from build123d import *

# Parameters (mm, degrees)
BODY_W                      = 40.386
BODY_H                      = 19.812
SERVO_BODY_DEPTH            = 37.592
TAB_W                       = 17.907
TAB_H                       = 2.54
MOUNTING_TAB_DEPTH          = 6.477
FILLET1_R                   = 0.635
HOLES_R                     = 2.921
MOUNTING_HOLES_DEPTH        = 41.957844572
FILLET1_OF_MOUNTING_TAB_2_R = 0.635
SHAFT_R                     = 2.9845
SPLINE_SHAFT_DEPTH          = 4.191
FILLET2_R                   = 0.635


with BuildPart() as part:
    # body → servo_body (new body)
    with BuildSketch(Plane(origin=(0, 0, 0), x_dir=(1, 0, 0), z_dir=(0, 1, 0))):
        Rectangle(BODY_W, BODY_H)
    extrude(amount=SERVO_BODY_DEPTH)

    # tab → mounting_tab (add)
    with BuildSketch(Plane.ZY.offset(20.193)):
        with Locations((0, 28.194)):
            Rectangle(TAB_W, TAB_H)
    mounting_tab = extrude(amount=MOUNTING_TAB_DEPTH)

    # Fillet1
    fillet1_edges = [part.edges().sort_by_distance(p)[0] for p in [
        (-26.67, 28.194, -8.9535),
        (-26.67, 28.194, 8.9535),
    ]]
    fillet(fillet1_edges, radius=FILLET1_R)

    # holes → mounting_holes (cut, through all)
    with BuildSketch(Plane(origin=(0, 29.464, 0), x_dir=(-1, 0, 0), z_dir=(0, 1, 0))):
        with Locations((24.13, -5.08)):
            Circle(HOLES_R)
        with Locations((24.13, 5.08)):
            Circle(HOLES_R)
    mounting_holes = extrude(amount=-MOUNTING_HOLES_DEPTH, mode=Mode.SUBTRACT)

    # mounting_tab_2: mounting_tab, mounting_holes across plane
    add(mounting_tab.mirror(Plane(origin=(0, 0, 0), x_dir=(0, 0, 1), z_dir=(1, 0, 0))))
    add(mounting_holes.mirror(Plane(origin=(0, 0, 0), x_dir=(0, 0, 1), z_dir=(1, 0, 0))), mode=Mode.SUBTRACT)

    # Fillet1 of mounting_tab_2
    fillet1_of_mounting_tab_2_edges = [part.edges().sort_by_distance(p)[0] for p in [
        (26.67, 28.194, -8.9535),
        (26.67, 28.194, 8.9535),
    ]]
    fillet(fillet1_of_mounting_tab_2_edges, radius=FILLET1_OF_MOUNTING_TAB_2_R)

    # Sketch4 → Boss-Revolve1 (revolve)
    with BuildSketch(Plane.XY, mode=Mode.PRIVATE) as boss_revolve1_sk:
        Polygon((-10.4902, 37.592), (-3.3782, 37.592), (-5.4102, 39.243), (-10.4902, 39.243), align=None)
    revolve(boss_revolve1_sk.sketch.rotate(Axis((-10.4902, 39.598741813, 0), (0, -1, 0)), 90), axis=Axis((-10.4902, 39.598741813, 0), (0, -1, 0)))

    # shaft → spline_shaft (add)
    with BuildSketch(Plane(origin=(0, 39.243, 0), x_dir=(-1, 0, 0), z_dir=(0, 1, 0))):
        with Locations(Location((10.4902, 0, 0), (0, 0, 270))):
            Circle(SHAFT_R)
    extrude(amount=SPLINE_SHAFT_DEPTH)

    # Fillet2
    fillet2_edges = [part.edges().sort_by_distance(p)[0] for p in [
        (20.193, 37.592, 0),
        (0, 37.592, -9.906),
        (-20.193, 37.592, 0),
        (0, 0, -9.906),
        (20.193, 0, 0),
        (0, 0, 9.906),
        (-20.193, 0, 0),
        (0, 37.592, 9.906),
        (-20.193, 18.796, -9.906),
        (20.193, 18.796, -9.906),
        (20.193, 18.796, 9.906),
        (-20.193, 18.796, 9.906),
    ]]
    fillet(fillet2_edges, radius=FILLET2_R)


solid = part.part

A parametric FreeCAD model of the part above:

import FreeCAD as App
import Part
import Sketcher

V = App.Vector
Q = App.Units.Quantity


def edges_at(feature, points):
    """Names of the edges that pass closest to the given points."""
    edges = feature.Shape.Edges
    near = lambda p: min(range(len(edges)), key=lambda i: edges[i].distToShape(Part.Vertex(*p))[0])
    return sorted({f"Edge{near(p) + 1}" for p in points})

doc = App.newDocument("Part")
body = doc.addObject("PartDesign::Body", "Body")

# Sketch on XZ plane
sketch1 = doc.addObject("Sketcher::SketchObject", "Sketch")
body.addObject(sketch1)
sketch1.AttachmentSupport = (doc.XZ_Plane, [""])
sketch1.MapMode = "FlatFace"
sketch1.addGeometry(Part.LineSegment(V(-20, -10, 0), V(-20, 10, 0)), False)
sketch1.addGeometry(Part.LineSegment(V(-20, 10, 0), V(20, 10, 0)), False)
sketch1.addGeometry(Part.LineSegment(V(20, 10, 0), V(20, -10, 0)), False)
sketch1.addGeometry(Part.LineSegment(V(20, -10, 0), V(-20, -10, 0)), False)
sketch1.addConstraint(Sketcher.Constraint("Coincident", 0, 2, 1, 1))
sketch1.addConstraint(Sketcher.Constraint("Coincident", 1, 2, 2, 1))
sketch1.addConstraint(Sketcher.Constraint("Coincident", 2, 2, 3, 1))
sketch1.addConstraint(Sketcher.Constraint("Coincident", 3, 2, 0, 1))
sketch1.addConstraint(Sketcher.Constraint("Vertical", 0))
sketch1.addConstraint(Sketcher.Constraint("Horizontal", 1))
sketch1.addConstraint(Sketcher.Constraint("Vertical", 2))
sketch1.addConstraint(Sketcher.Constraint("Horizontal", 3))
sketch1.addConstraint(Sketcher.Constraint("Symmetric", 0, 2, 2, 2, -1, 1))
sketch1.addConstraint(Sketcher.Constraint("DistanceX", 1, 1, 1, 2, Q("1.59 in")))
sketch1.addConstraint(Sketcher.Constraint("DistanceY", 0, 1, 0, 2, Q("0.78 in")))
pad1 = doc.addObject("PartDesign::Pad", "Pad")
body.addObject(pad1)
pad1.Profile = sketch1
pad1.Length = Q("1.48 in")
pad1.Reversed = True

# Sketch on YZ plane
sketch2 = doc.addObject("Sketcher::SketchObject", "Sketch001")
body.addObject(sketch2)
sketch2.AttachmentSupport = (doc.YZ_Plane, [""])
sketch2.MapMode = "FlatFace"
sketch2.AttachmentOffset = App.Placement(V(0, 0, -0.795 * 25.4), App.Rotation())
sketch2.addGeometry(Part.LineSegment(V(29.5, -9, 0), V(26.9, -9, 0)), False)
sketch2.addGeometry(Part.LineSegment(V(26.9, -9, 0), V(26.9, 9, 0)), False)
sketch2.addGeometry(Part.LineSegment(V(26.9, 9, 0), V(29.5, 9, 0)), False)
sketch2.addGeometry(Part.LineSegment(V(29.5, 9, 0), V(29.5, -9, 0)), False)
sketch2.addConstraint(Sketcher.Constraint("Coincident", 0, 2, 1, 1))
sketch2.addConstraint(Sketcher.Constraint("Coincident", 1, 2, 2, 1))
sketch2.addConstraint(Sketcher.Constraint("Coincident", 2, 2, 3, 1))
sketch2.addConstraint(Sketcher.Constraint("Coincident", 3, 2, 0, 1))
sketch2.addConstraint(Sketcher.Constraint("Horizontal", 0))
sketch2.addConstraint(Sketcher.Constraint("Vertical", 1))
sketch2.addConstraint(Sketcher.Constraint("Horizontal", 2))
sketch2.addConstraint(Sketcher.Constraint("Vertical", 3))
sketch2.addConstraint(Sketcher.Constraint("DistanceX", 0, 2, 0, 1, Q("0.1 in")))
sketch2.addConstraint(Sketcher.Constraint("DistanceY", 1, 1, 1, 2, Q("0.705 in")))
sketch2.addConstraint(Sketcher.Constraint("DistanceX", -1, 1, 0, 2, Q("1.06 in")))
sketch2.addConstraint(Sketcher.Constraint("DistanceY", 0, 2, -1, 1, Q("0.3525 in")))
pad2 = doc.addObject("PartDesign::Pad", "Pad001")
body.addObject(pad2)
pad2.Profile = sketch2
pad2.Length = Q("0.255 in")
pad2.Reversed = True
doc.recompute()

fillet = doc.addObject("PartDesign::Fillet", "Fillet")
body.addObject(fillet)
fillet.Base = (pad2, edges_at(pad2, [(-26.67, 28.194, -8.954), (-26.67, 28.194, 8.954)]))
fillet.Radius = Q("0.025 in")

# Sketch on XZ plane
sketch3 = doc.addObject("Sketcher::SketchObject", "Sketch002")
body.addObject(sketch3)
sketch3.AttachmentSupport = (doc.XZ_Plane, [""])
sketch3.MapMode = "FlatFace"
sketch3.AttachmentOffset = App.Placement(V(0, 0, -1.16 * 25.4), App.Rotation())
sketch3.addGeometry(Part.Circle(V(-24.1, -5.1, 0), V(0, 0, 1), 2.9), False)
sketch3.addGeometry(Part.Circle(V(-24.1, 5.1, 0), V(0, 0, 1), 2.9), False)
sketch3.addConstraint(Sketcher.Constraint("Equal", 0, 1))
sketch3.addConstraint(Sketcher.Constraint("Symmetric", 0, 3, 1, 3, -1))
sketch3.addConstraint(Sketcher.Constraint("Diameter", 0, Q("0.23 in")))
sketch3.addConstraint(Sketcher.Constraint("DistanceY", 0, 3, -1, 1, Q("0.2 in")))
sketch3.addConstraint(Sketcher.Constraint("DistanceX", 0, 3, -1, 1, Q("0.95 in")))
pocket1 = doc.addObject("PartDesign::Pocket", "Pocket")
body.addObject(pocket1)
pocket1.Profile = sketch3
pocket1.Type = "ThroughAll"
pocket1.Reversed = True
doc.recompute()

mirrored = doc.addObject("PartDesign::Mirrored", "Mirrored")
body.addObject(mirrored)
mirrored.Originals = [pad2, pocket1]
mirrored.MirrorPlane = (doc.YZ_Plane, [""])
body.Tip = mirrored
doc.recompute()

fillet2 = doc.addObject("PartDesign::Fillet", "Fillet001")
body.addObject(fillet2)
fillet2.Base = (mirrored, edges_at(mirrored, [(26.67, 28.194, -8.954), (26.67, 28.194, 8.954)]))
fillet2.Radius = Q("0.025 in")

# Sketch on XY plane
sketch4 = doc.addObject("Sketcher::SketchObject", "Sketch003")
body.addObject(sketch4)
sketch4.AttachmentSupport = (doc.XY_Plane, [""])
sketch4.MapMode = "FlatFace"
sketch4.addGeometry(Part.LineSegment(V(-10.5, 37.6, 0), V(-3.4, 37.6, 0)), False)
sketch4.addGeometry(Part.LineSegment(V(-3.4, 37.6, 0), V(-5.4, 39.2, 0)), False)
sketch4.addGeometry(Part.LineSegment(V(-5.4, 39.2, 0), V(-10.5, 39.2, 0)), False)
sketch4.addGeometry(Part.LineSegment(V(-10.5, 39.2, 0), V(-10.5, 37.6, 0)), False)
sketch4.addGeometry(Part.LineSegment(V(-10.5, 39.2, 0), V(-10.5, 37.6, 0)), True)  # axis
sketch4.addConstraint(Sketcher.Constraint("Coincident", 0, 2, 1, 1))
sketch4.addConstraint(Sketcher.Constraint("Coincident", 1, 2, 2, 1))
sketch4.addConstraint(Sketcher.Constraint("Coincident", 2, 2, 3, 1))
sketch4.addConstraint(Sketcher.Constraint("Coincident", 3, 2, 0, 1))
sketch4.addConstraint(Sketcher.Constraint("Horizontal", 0))
sketch4.addConstraint(Sketcher.Constraint("Horizontal", 2))
sketch4.addConstraint(Sketcher.Constraint("Vertical", 3))
sketch4.addConstraint(Sketcher.Constraint("Vertical", 4))
sketch4.addConstraint(Sketcher.Constraint("Coincident", 4, 1, 2, 2))
sketch4.addConstraint(Sketcher.Constraint("Horizontal", 0, 2, 4, 2))
sketch4.addConstraint(Sketcher.Constraint("DistanceX", 2, 2, 2, 1, Q("0.2 in")))
sketch4.addConstraint(Sketcher.Constraint("DistanceX", 0, 1, 0, 2, Q("0.28 in")))
sketch4.addConstraint(Sketcher.Constraint("DistanceY", 3, 2, 3, 1, Q("0.065 in")))
sketch4.addConstraint(Sketcher.Constraint("DistanceY", -1, 1, 0, 2, Q("1.48 in")))
sketch4.addConstraint(Sketcher.Constraint("DistanceX", 0, 2, -1, 1, Q("0.133 in")))
revolution = doc.addObject("PartDesign::Revolution", "Revolution")
body.addObject(revolution)
revolution.Profile = sketch4
revolution.ReferenceAxis = (sketch4, ["Axis0"])
revolution.Angle = 360

# Sketch on XZ plane
sketch5 = doc.addObject("Sketcher::SketchObject", "Sketch004")
body.addObject(sketch5)
sketch5.AttachmentSupport = (doc.XZ_Plane, [""])
sketch5.MapMode = "FlatFace"
sketch5.AttachmentOffset = App.Placement(V(0, 0, -1.545 * 25.4), App.Rotation())
sketch5.addGeometry(Part.Circle(V(-10.5, 0, 0), V(0, 0, 1), 3), False)
sketch5.addConstraint(Sketcher.Constraint("PointOnObject", 0, 3, -1))
sketch5.addConstraint(Sketcher.Constraint("Diameter", 0, Q("0.235 in")))
sketch5.addConstraint(Sketcher.Constraint("DistanceX", 0, 3, -1, 1, Q("0.413 in")))
pad3 = doc.addObject("PartDesign::Pad", "Pad002")
body.addObject(pad3)
pad3.Profile = sketch5
pad3.Length = Q("0.165 in")
pad3.Reversed = True
doc.recompute()

fillet3 = doc.addObject("PartDesign::Fillet", "Fillet002")
body.addObject(fillet3)
fillet3.Base = (pad3, edges_at(pad3, [
    (20.193, 37.592, 0),
    (0, 37.592, -9.906),
    (-20.193, 37.592, 0),
    (0, 0, -9.906),
    (20.193, 0, 0),
    (0, 0, 9.906),
    (-20.193, 0, 0),
    (0, 37.592, 9.906),
    (-20.193, 18.796, -9.906),
    (20.193, 18.796, -9.906),
    (20.193, 18.796, 9.906),
    (-20.193, 18.796, 9.906),
]))
fillet3.Radius = Q("0.025 in")

doc.recompute()
